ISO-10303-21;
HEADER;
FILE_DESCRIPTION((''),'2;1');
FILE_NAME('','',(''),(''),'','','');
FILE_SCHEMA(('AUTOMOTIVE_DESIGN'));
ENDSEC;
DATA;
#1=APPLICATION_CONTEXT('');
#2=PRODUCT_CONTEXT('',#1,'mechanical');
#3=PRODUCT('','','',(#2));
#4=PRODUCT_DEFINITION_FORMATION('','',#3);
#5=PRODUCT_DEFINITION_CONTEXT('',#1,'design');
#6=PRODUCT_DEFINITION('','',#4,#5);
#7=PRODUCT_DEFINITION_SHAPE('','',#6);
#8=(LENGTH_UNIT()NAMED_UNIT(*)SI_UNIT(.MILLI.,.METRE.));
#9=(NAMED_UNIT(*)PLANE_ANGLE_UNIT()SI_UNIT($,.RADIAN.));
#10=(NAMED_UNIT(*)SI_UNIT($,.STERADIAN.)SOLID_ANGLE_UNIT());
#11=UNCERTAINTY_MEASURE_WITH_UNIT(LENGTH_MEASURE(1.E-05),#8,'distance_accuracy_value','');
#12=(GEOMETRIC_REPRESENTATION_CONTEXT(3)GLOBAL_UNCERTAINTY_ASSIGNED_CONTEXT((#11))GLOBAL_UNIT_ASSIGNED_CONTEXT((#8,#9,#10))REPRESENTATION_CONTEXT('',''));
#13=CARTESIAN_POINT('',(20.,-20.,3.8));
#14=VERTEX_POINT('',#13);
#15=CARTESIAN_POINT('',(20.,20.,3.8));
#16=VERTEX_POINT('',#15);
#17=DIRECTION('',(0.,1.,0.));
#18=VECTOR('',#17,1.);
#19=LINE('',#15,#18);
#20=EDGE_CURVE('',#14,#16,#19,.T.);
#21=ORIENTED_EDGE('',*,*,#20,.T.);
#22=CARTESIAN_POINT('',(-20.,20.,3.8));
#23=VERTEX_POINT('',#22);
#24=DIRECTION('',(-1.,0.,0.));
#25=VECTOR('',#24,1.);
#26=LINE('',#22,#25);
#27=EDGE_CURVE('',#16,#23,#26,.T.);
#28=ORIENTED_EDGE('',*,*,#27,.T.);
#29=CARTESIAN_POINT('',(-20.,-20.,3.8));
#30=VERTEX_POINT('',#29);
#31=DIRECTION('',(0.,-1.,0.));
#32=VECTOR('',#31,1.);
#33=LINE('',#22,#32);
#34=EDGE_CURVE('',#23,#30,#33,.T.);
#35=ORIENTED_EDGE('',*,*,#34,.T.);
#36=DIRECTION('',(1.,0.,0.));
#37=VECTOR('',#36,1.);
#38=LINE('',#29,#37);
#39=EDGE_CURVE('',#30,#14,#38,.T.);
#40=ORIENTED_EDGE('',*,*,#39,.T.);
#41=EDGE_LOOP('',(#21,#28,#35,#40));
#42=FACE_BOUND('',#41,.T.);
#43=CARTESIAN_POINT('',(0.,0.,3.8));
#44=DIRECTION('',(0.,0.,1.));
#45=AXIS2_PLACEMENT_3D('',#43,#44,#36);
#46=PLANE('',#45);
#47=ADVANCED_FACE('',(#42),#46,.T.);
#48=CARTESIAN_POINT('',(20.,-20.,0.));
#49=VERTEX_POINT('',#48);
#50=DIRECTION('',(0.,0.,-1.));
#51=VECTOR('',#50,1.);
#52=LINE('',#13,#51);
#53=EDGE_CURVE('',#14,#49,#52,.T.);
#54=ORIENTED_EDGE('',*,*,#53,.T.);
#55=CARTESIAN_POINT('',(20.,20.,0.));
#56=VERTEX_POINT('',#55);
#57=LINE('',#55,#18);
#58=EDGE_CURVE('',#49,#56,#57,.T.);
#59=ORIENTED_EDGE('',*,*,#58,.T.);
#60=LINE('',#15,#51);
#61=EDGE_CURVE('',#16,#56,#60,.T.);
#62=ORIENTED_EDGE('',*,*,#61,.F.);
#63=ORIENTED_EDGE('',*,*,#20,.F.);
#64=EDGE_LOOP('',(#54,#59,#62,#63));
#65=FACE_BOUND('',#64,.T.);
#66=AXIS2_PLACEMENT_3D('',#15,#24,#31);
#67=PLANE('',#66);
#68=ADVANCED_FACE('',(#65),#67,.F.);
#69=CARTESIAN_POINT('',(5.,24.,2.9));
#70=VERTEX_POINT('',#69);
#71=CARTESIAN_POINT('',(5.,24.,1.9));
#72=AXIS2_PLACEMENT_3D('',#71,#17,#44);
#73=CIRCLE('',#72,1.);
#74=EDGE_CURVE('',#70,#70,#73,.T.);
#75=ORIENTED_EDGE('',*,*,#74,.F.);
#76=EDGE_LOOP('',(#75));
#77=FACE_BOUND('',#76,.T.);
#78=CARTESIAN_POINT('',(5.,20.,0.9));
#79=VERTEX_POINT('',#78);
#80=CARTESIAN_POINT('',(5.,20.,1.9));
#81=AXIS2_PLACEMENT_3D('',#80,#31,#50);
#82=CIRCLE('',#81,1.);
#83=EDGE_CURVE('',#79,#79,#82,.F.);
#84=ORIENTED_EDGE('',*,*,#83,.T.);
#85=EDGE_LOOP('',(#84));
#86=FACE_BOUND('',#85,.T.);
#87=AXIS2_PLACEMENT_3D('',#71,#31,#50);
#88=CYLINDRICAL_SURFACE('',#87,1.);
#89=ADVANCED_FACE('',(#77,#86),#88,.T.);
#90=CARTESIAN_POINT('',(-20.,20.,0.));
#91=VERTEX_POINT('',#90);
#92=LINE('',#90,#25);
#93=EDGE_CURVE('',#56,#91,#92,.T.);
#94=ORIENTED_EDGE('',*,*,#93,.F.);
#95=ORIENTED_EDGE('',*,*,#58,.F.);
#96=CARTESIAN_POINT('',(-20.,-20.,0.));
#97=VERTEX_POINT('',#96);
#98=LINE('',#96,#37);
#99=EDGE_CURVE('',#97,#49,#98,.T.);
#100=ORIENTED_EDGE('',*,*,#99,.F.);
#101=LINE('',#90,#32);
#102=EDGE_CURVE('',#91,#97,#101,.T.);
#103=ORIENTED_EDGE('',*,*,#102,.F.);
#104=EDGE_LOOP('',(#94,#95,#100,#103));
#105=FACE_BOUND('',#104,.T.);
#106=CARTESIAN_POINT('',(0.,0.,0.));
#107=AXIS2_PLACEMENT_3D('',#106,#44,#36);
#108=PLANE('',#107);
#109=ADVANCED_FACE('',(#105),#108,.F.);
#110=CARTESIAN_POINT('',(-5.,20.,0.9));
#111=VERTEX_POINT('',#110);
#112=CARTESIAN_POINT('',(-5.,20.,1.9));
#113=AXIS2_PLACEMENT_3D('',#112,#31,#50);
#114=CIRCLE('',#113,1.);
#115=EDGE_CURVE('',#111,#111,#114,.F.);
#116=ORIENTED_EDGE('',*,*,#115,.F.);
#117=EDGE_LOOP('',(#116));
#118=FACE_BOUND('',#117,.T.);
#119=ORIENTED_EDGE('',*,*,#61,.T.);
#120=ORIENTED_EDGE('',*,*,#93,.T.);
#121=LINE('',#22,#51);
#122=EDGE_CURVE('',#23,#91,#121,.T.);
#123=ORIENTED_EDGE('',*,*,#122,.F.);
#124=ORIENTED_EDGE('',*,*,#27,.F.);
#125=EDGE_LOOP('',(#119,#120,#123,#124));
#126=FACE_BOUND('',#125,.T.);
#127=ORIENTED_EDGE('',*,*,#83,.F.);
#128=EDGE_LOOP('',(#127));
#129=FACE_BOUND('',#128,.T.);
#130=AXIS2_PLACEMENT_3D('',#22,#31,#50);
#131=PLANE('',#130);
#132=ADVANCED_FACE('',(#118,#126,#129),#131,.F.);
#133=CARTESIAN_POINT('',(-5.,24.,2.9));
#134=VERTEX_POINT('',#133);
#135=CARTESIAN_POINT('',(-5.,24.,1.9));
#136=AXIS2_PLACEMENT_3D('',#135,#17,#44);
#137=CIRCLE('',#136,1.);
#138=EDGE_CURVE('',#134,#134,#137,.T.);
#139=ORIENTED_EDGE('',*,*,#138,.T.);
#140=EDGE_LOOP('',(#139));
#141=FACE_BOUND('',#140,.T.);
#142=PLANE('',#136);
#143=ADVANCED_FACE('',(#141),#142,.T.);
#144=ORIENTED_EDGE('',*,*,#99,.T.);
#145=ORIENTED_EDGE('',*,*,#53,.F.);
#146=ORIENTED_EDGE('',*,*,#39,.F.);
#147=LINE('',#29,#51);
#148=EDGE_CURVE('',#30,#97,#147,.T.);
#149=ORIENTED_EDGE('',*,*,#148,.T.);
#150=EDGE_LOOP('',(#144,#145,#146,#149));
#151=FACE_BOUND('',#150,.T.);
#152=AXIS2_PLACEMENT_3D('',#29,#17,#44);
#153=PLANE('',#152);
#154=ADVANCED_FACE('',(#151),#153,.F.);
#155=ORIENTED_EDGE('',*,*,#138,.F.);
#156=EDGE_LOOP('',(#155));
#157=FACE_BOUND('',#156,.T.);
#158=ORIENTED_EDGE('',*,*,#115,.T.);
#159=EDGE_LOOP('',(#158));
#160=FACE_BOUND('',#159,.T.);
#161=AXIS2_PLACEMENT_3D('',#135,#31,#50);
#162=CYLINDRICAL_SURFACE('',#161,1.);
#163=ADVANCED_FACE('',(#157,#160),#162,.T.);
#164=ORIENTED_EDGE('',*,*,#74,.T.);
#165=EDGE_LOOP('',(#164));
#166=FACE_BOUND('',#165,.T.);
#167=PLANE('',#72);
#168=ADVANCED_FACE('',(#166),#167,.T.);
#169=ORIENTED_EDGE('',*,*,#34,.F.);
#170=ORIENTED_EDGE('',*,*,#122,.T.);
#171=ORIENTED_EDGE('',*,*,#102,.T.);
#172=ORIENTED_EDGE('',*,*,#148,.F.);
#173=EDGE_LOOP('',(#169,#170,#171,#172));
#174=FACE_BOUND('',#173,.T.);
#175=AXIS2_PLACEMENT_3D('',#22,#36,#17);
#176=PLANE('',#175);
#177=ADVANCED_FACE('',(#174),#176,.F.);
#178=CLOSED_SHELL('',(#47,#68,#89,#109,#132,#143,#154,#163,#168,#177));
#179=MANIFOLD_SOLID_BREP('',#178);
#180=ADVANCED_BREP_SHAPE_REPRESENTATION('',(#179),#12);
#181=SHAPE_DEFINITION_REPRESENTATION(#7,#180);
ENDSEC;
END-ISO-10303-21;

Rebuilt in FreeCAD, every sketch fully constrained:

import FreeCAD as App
import Part
import Sketcher
Q = App.Units.Quantity

doc = App.newDocument("Part")
body = doc.addObject("PartDesign::Body", "Body")

sketch1 = doc.addObject("Sketcher::SketchObject", "Sketch")
body.addObject(sketch1)
sketch1.AttachmentSupport = (doc.XY_Plane, [""])
sketch1.MapMode = "FlatFace"
sketch1.addGeometry(Part.LineSegment(App.Vector(-20, 20, 0), App.Vector(-20, -20, 0)), False)
sketch1.addGeometry(Part.LineSegment(App.Vector(-20, -20, 0), App.Vector(20, -20, 0)), False)
sketch1.addGeometry(Part.LineSegment(App.Vector(20, -20, 0), App.Vector(20, 20, 0)), False)
sketch1.addGeometry(Part.LineSegment(App.Vector(20, 20, 0), App.Vector(-20, 20, 0)), False)
sketch1.addConstraint(Sketcher.Constraint("Coincident", 0, 2, 1, 1))
sketch1.addConstraint(Sketcher.Constraint("Coincident", 1, 2, 2, 1))
sketch1.addConstraint(Sketcher.Constraint("Coincident", 2, 2, 3, 1))
sketch1.addConstraint(Sketcher.Constraint("Coincident", 3, 2, 0, 1))
sketch1.addConstraint(Sketcher.Constraint("Vertical", 0))
sketch1.addConstraint(Sketcher.Constraint("Horizontal", 1))
sketch1.addConstraint(Sketcher.Constraint("Vertical", 2))
sketch1.addConstraint(Sketcher.Constraint("Horizontal", 3))
sketch1.addConstraint(Sketcher.Constraint("Symmetric", 0, 2, 2, 2, -1, 1))
sketch1.addConstraint(Sketcher.Constraint("Equal", 3, 0))
sketch1.addConstraint(Sketcher.Constraint("DistanceX", 1, 1, 1, 2, Q("40 mm")))
pad1 = doc.addObject("PartDesign::Pad", "Pad")
body.addObject(pad1)
pad1.Profile = sketch1
pad1.Length = 3.8

sketch2 = doc.addObject("Sketcher::SketchObject", "Sketch001")
body.addObject(sketch2)
sketch2.AttachmentSupport = (doc.XZ_Plane, [""])
sketch2.MapMode = "FlatFace"
sketch2.AttachmentOffset = App.Placement(App.Vector(0, 0, -20), App.Rotation())
sketch2.addGeometry(Part.Circle(App.Vector(5, 1.9, 0), App.Vector(0, 0, 1), 1), False)
sketch2.addConstraint(Sketcher.Constraint("Diameter", 0, Q("2 mm")))
sketch2.addConstraint(Sketcher.Constraint("DistanceX", -1, 1, 0, 3, Q("5 mm")))
sketch2.addConstraint(Sketcher.Constraint("DistanceY", -1, 1, 0, 3, Q("1.9 mm")))
pad2 = doc.addObject("PartDesign::Pad", "Pad001")
body.addObject(pad2)
pad2.Profile = sketch2
pad2.Length = 4
pad2.Reversed = True

sketch3 = doc.addObject("Sketcher::SketchObject", "Sketch002")
body.addObject(sketch3)
sketch3.AttachmentSupport = (doc.XZ_Plane, [""])
sketch3.MapMode = "FlatFace"
sketch3.AttachmentOffset = App.Placement(App.Vector(0, 0, -20), App.Rotation())
sketch3.addGeometry(Part.Circle(App.Vector(-5, 1.9, 0), App.Vector(0, 0, 1), 1), False)
sketch3.addConstraint(Sketcher.Constraint("Diameter", 0, Q("2 mm")))
sketch3.addConstraint(Sketcher.Constraint("DistanceX", 0, 3, -1, 1, Q("5 mm")))
sketch3.addConstraint(Sketcher.Constraint("DistanceY", -1, 1, 0, 3, Q("1.9 mm")))
pad3 = doc.addObject("PartDesign::Pad", "Pad002")
body.addObject(pad3)
pad3.Profile = sketch3
pad3.Length = 4
pad3.Reversed = True

doc.recompute()
